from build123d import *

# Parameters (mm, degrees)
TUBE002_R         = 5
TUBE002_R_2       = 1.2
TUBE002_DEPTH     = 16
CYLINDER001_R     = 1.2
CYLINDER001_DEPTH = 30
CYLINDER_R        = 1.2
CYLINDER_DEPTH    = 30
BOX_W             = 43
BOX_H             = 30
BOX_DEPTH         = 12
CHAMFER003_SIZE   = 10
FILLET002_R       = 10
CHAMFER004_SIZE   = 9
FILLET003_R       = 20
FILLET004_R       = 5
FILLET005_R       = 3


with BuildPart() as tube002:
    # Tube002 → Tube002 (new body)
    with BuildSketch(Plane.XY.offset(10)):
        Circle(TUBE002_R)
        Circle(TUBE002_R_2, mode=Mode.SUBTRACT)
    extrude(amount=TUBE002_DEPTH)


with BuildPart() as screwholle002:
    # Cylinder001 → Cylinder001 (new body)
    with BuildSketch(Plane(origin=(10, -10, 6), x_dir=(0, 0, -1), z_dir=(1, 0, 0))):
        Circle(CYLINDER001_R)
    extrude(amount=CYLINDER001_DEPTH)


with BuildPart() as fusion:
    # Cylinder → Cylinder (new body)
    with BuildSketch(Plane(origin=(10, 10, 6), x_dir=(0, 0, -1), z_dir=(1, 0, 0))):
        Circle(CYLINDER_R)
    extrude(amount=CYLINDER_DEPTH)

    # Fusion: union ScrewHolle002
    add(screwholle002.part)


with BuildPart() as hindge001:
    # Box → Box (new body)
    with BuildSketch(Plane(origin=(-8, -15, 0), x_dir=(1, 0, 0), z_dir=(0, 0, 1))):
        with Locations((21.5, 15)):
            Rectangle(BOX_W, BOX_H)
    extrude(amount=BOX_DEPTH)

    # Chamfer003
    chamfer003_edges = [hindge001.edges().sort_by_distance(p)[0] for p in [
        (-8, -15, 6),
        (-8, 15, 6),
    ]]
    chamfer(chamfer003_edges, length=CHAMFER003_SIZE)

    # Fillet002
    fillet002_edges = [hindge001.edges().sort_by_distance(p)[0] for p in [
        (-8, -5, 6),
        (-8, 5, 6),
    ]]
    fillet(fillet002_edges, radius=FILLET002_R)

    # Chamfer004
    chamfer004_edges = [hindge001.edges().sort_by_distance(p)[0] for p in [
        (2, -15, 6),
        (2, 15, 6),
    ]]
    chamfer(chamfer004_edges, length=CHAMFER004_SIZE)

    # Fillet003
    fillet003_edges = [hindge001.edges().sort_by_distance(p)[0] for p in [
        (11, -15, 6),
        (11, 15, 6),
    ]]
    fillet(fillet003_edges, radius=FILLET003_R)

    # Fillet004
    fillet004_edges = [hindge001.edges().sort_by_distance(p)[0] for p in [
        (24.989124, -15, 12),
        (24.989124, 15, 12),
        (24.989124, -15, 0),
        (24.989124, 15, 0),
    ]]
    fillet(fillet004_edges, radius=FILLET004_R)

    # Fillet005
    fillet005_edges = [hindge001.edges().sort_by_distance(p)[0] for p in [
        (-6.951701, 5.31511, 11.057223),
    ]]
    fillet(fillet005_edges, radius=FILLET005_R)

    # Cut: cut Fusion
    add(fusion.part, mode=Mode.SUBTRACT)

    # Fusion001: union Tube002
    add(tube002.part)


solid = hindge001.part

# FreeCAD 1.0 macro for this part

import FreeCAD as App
import Part
import Sketcher

V = App.Vector


def edges_at(feature, points):
    """Names of the edges that pass closest to the given points."""
    edges = feature.Shape.Edges
    near = lambda p: min(range(len(edges)), key=lambda i: edges[i].distToShape(Part.Vertex(*p))[0])
    return sorted({f"Edge{near(p) + 1}" for p in points})


def add_polygon(sketch, points):
    """Adds a closed chain of lines whose ends are joined by coincident constraints."""
    first, n = sketch.GeometryCount, len(points)
    for a, b in zip(points, points[1:] + points[:1]):
        sketch.addGeometry(Part.LineSegment(App.Vector(*a, 0), App.Vector(*b, 0)), False)
    for i in range(n):
        sketch.addConstraint(Sketcher.Constraint("Coincident", first + i, 2, first + (i + 1) % n, 1))

doc = App.newDocument("Part")
body = doc.addObject("PartDesign::Body", "Body")

sketch1 = doc.addObject("Sketcher::SketchObject", "Sketch")
body.addObject(sketch1)
sketch1.AttachmentSupport = (doc.XY_Plane, [""])
sketch1.MapMode = "FlatFace"
sketch1.AttachmentOffset = App.Placement(V(0, 0, 10), App.Rotation())
sketch1.addGeometry([
    Part.Circle(V(0, 0, 0), V(0, 0, 1), 5),
    Part.Circle(V(0, 0, 0), V(0, 0, 1), 1.2),
], False)
sketch1.addConstraint([
    Sketcher.Constraint("Coincident", 0, 3, -1, 1),
    Sketcher.Constraint("Coincident", 1, 3, -1, 1),
    Sketcher.Constraint("Diameter", 0, 10.0),
    Sketcher.Constraint("Diameter", 1, 2.4),
])
pad1 = doc.addObject("PartDesign::Pad", "Pad")
body.addObject(pad1)
pad1.Profile = sketch1
pad1.Length = 16
body2 = doc.addObject("PartDesign::Body", "Body001")

sketch2 = doc.addObject("Sketcher::SketchObject", "Sketch001")
body2.addObject(sketch2)
sketch2.AttachmentSupport = (doc.getObject("YZ_Plane001"), [""])
sketch2.MapMode = "FlatFace"
sketch2.AttachmentOffset = App.Placement(V(0, 0, 10), App.Rotation())
sketch2.addGeometry(Part.Circle(V(-10, 6, 0), V(0, 0, 1), 1.2), False)
sketch2.addConstraint([
    Sketcher.Constraint("Diameter", 0, 2.4),
    Sketcher.Constraint("DistanceX", 0, 3, -1, 1, 10.0),
    Sketcher.Constraint("DistanceY", -1, 1, 0, 3, 6.0),
])
pad2 = doc.addObject("PartDesign::Pad", "Pad001")
body2.addObject(pad2)
pad2.Profile = sketch2
pad2.Length = 30
body3 = doc.addObject("PartDesign::Body", "Body002")
body3.AllowCompound = True

sketch3 = doc.addObject("Sketcher::SketchObject", "Sketch002")
body3.addObject(sketch3)
sketch3.AttachmentSupport = (doc.getObject("YZ_Plane002"), [""])
sketch3.MapMode = "FlatFace"
sketch3.AttachmentOffset = App.Placement(V(0, 0, 10), App.Rotation())
sketch3.addGeometry(Part.Circle(V(10, 6, 0), V(0, 0, 1), 1.2), False)
sketch3.addConstraint([
    Sketcher.Constraint("Diameter", 0, 2.4),
    Sketcher.Constraint("DistanceX", -1, 1, 0, 3, 10.0),
    Sketcher.Constraint("DistanceY", -1, 1, 0, 3, 6.0),
])
pad3 = doc.addObject("PartDesign::Pad", "Pad002")
body3.addObject(pad3)
pad3.Profile = sketch3
pad3.Length = 30
doc.recompute()

boolean = doc.addObject("PartDesign::Boolean", "Boolean")
body3.addObject(boolean)
boolean.Type = "Fuse"
boolean.addObjects([body2])
body4 = doc.addObject("PartDesign::Body", "Body003")

sketch4 = doc.addObject("Sketcher::SketchObject", "Sketch003")
body4.addObject(sketch4)
sketch4.AttachmentSupport = (doc.getObject("XY_Plane003"), [""])
sketch4.MapMode = "FlatFace"
add_polygon(sketch4, [(-8, 15), (-8, -15), (35, -15), (35, 15)])
sketch4.addConstraint([
    Sketcher.Constraint("Vertical", 0),
    Sketcher.Constraint("Horizontal", 1),
    Sketcher.Constraint("Vertical", 2),
    Sketcher.Constraint("Horizontal", 3),
    Sketcher.Constraint("DistanceX", 1, 1, 1, 2, 43.0),
    Sketcher.Constraint("DistanceY", 0, 2, 0, 1, 30.0),
    Sketcher.Constraint("DistanceX", 0, 2, -1, 1, 8.0),
    Sketcher.Constraint("DistanceY", 0, 2, -1, 1, 15.0),
])
pad4 = doc.addObject("PartDesign::Pad", "Pad003")
body4.addObject(pad4)
pad4.Profile = sketch4
pad4.Length = 12
doc.recompute()

chamfer = doc.addObject("PartDesign::Chamfer", "Chamfer")
body4.addObject(chamfer)
chamfer.Base = (pad4, edges_at(pad4, [(-8, -15, 6), (-8, 15, 6)]))
chamfer.Size = 10
doc.recompute()

fillet = doc.addObject("PartDesign::Fillet", "Fillet")
body4.addObject(fillet)
fillet.Base = (chamfer, edges_at(chamfer, [(-8, -5, 6), (-8, 5, 6)]))
fillet.Radius = 10
doc.recompute()

chamfer2 = doc.addObject("PartDesign::Chamfer", "Chamfer001")
body4.addObject(chamfer2)
chamfer2.Base = (fillet, edges_at(fillet, [(2, -15, 6), (2, 15, 6)]))
chamfer2.Size = 9
doc.recompute()

fillet2 = doc.addObject("PartDesign::Fillet", "Fillet001")
body4.addObject(fillet2)
fillet2.Base = (chamfer2, edges_at(chamfer2, [(11, -15, 6), (11, 15, 6)]))
fillet2.Radius = 20
doc.recompute()

fillet3 = doc.addObject("PartDesign::Fillet", "Fillet002")
body4.addObject(fillet3)
fillet3.Base = (fillet2, edges_at(fillet2, [
    (24.989, -15, 12),
    (24.989, 15, 12),
    (24.989, -15, 0),
    (24.989, 15, 0),
]))
fillet3.Radius = 5
doc.recompute()

fillet4 = doc.addObject("PartDesign::Fillet", "Fillet003")
body4.addObject(fillet4)
fillet4.Base = (fillet3, edges_at(fillet3, [(-6.952, 5.315, 11.057)]))
fillet4.Radius = 3
doc.recompute()

boolean2 = doc.addObject("PartDesign::Boolean", "Boolean001")
body4.addObject(boolean2)
boolean2.Type = "Cut"
boolean2.addObjects([body3])
doc.recompute()

boolean3 = doc.addObject("PartDesign::Boolean", "Boolean002")
body4.addObject(boolean3)
boolean3.Type = "Fuse"
boolean3.addObjects([body])

doc.recompute()
